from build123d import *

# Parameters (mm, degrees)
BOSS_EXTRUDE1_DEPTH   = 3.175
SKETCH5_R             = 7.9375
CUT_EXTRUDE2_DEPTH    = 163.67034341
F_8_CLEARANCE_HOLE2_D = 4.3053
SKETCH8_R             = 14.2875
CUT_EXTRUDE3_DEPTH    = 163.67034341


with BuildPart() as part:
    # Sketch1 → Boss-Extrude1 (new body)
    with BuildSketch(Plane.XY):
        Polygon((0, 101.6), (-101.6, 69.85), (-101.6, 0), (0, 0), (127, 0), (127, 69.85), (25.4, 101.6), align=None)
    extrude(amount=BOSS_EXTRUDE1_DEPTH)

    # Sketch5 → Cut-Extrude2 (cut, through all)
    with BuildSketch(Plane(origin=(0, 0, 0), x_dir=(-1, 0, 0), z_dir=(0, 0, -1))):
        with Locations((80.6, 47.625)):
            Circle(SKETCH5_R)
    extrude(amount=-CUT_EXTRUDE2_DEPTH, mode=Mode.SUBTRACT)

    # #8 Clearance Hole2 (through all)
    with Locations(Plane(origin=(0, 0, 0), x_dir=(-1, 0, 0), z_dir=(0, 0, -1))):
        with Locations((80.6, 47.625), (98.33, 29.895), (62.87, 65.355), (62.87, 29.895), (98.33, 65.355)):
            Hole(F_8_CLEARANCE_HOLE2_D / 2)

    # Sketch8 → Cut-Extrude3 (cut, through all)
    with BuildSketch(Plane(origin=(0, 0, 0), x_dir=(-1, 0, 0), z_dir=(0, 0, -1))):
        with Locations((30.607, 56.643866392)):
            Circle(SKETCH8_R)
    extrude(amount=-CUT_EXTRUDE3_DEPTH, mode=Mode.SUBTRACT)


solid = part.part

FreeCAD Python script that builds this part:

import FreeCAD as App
import Part
import Sketcher
Q = App.Units.Quantity


def add_polygon(sketch, points):
    """Adds a closed chain of lines whose ends are joined by coincident constraints."""
    first, n = sketch.GeometryCount, len(points)
    for a, b in zip(points, points[1:] + points[:1]):
        sketch.addGeometry(Part.LineSegment(App.Vector(*a, 0), App.Vector(*b, 0)), False)
    for i in range(n):
        sketch.addConstraint(Sketcher.Constraint("Coincident", first + i, 2, first + (i + 1) % n, 1))

doc = App.newDocument("Part")
body = doc.addObject("PartDesign::Body", "Body")

# Sketch on XY plane
sketch1 = doc.addObject("Sketcher::SketchObject", "Sketch")
body.addObject(sketch1)
sketch1.AttachmentSupport = (doc.XY_Plane, [""])
sketch1.MapMode = "FlatFace"
add_polygon(sketch1, [(0, 101.6), (-101.6, 69.85), (-101.6, 0), (127, 0), (127, 69.85), (25.4, 101.6)])  # lines 0-5
sketch1.addConstraint([
    Sketcher.Constraint("Vertical", 1),
    Sketcher.Constraint("Horizontal", 2),
    Sketcher.Constraint("Vertical", 3),
    Sketcher.Constraint("Horizontal", 5),
    Sketcher.Constraint("PointOnObject", 1, 2, -1),
    Sketcher.Constraint("PointOnObject", 5, 2, -2),
    Sketcher.Constraint("Horizontal", 0, 2, 3, 2),
    Sketcher.Constraint("Equal", 0, 4),
    Sketcher.Constraint("DistanceX", 2, 1, 2, 2, Q("9 in")),
    Sketcher.Constraint("DistanceX", 5, 2, 5, 1, Q("1 in")),
    Sketcher.Constraint("DistanceY", -1, 1, 4, 2, Q("4 in")),
    Sketcher.Constraint("DistanceY", 1, 2, 1, 1, Q("2.75 in")),
])
pad1 = doc.addObject("PartDesign::Pad", "Pad")
body.addObject(pad1)
pad1.Profile = sketch1
pad1.Length = Q("0.125 in")

# Sketch on XY plane
sketch2 = doc.addObject("Sketcher::SketchObject", "Sketch001")
body.addObject(sketch2)
sketch2.AttachmentSupport = (doc.XY_Plane, [""])
sketch2.MapMode = "FlatFace"
sketch2.addGeometry(Part.Circle(App.Vector(-80.6, 47.625, 0), App.Vector(0, 0, 1), 7.9375), False)
sketch2.addConstraint([
    Sketcher.Constraint("Diameter", 0, Q("0.625 in")),
    Sketcher.Constraint("DistanceY", -1, 1, 0, 3, Q("1.875 in")),
    Sketcher.Constraint("DistanceX", 0, 3, -1, 1, 80.6),
])
pocket1 = doc.addObject("PartDesign::Pocket", "Pocket")
body.addObject(pocket1)
pocket1.Profile = sketch2
pocket1.Type = "ThroughAll"
pocket1.Reversed = True

# Sketch on XY plane
sketch3 = doc.addObject("Sketcher::SketchObject", "Sketch002")
body.addObject(sketch3)
sketch3.AttachmentSupport = (doc.XY_Plane, [""])
sketch3.MapMode = "FlatFace"
sketch3.addGeometry([
    Part.Circle(App.Vector(-80.6, 47.625, 0), App.Vector(0, 0, 1), 2.15265),  # 0
    Part.Circle(App.Vector(-98.33, 29.895, 0), App.Vector(0, 0, 1), 2.15265),  # 1
    Part.Circle(App.Vector(-62.87, 65.355, 0), App.Vector(0, 0, 1), 2.15265),  # 2
    Part.Circle(App.Vector(-62.87, 29.895, 0), App.Vector(0, 0, 1), 2.15265),  # 3
    Part.Circle(App.Vector(-98.33, 65.355, 0), App.Vector(0, 0, 1), 2.15265),  # 4
], False)
sketch3.addConstraint([
    Sketcher.Constraint("Equal", 0, 1),
    Sketcher.Constraint("Equal", 1, 2),
    Sketcher.Constraint("Equal", 2, 3),
    Sketcher.Constraint("Equal", 3, 4),
    Sketcher.Constraint("Horizontal", 1, 3, 3, 3),
    Sketcher.Constraint("Horizontal", 2, 3, 4, 3),
    Sketcher.Constraint("Vertical", 2, 3, 3, 3),
    Sketcher.Constraint("Vertical", 1, 3, 4, 3),
    Sketcher.Constraint("Diameter", 0, Q("0.1695 in")),
    Sketcher.Constraint("DistanceY", -1, 1, 0, 3, Q("1.875 in")),
    Sketcher.Constraint("DistanceX", 0, 3, -1, 1, 80.6),
    Sketcher.Constraint("DistanceX", 1, 3, -1, 1, 98.33),
    Sketcher.Constraint("DistanceY", -1, 1, 1, 3, 29.895),
    Sketcher.Constraint("DistanceX", 2, 3, -1, 1, 62.87),
    Sketcher.Constraint("DistanceY", -1, 1, 2, 3, 65.355),
])
doc.recompute()
hole = doc.addObject("PartDesign::Hole", "Hole")
body.addObject(hole)
hole.Profile = sketch3
hole.ThreadType = "None"
hole.Diameter = Q("0.1695 in")
hole.DepthType = "ThroughAll"
hole.Reversed = True

# Sketch on XY plane
sketch4 = doc.addObject("Sketcher::SketchObject", "Sketch003")
body.addObject(sketch4)
sketch4.AttachmentSupport = (doc.XY_Plane, [""])
sketch4.MapMode = "FlatFace"
sketch4.addGeometry(Part.Circle(App.Vector(-30.607, 56.643866, 0), App.Vector(0, 0, 1), 14.2875), False)
sketch4.addConstraint([
    Sketcher.Constraint("Diameter", 0, Q("1.125 in")),
    Sketcher.Constraint("DistanceX", 0, 3, -1, 1, Q("1.205 in")),
    Sketcher.Constraint("DistanceY", -1, 1, 0, 3, 56.643866),
])
pocket2 = doc.addObject("PartDesign::Pocket", "Pocket001")
body.addObject(pocket2)
pocket2.Profile = sketch4
pocket2.Type = "ThroughAll"
pocket2.Reversed = True

doc.recompute()
